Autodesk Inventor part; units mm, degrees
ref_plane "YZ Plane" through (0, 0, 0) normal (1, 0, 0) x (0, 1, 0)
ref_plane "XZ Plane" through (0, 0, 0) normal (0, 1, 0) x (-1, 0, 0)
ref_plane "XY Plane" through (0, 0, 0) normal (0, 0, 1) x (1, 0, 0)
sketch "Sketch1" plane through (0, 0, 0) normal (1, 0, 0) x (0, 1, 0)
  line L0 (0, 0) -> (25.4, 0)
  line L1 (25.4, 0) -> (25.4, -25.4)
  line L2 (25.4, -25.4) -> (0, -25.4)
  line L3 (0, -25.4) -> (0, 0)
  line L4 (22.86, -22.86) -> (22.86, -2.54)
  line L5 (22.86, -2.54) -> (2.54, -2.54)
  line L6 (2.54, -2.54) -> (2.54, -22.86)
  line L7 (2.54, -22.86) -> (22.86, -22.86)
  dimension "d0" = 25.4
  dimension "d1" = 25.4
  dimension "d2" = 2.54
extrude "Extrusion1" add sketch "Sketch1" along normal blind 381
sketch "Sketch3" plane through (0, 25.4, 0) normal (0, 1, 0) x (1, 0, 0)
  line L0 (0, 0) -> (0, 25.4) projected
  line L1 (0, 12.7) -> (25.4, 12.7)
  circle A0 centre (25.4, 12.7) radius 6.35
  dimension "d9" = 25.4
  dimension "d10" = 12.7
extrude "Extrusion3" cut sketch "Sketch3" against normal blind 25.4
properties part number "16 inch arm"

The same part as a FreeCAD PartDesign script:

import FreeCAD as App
import Part
import Sketcher
Q = App.Units.Quantity

doc = App.newDocument("Part")
body = doc.addObject("PartDesign::Body", "Body")

sketch1 = body.newObject("Sketcher::SketchObject", "Sketch")
sketch1.AttachmentSupport = (doc.getObject("YZ_Plane"), [""])
sketch1.MapMode = "FlatFace"
sketch1.addGeometry([
    Part.LineSegment(App.Vector(25, 0, 0), App.Vector(0, 0, 0)),
    Part.LineSegment(App.Vector(0, 0, 0), App.Vector(0, -25, 0)),
    Part.LineSegment(App.Vector(0, -25, 0), App.Vector(25, -25, 0)),
    Part.LineSegment(App.Vector(25, -25, 0), App.Vector(25, 0, 0)),
    Part.LineSegment(App.Vector(23, -3, 0), App.Vector(23, -23, 0)),
    Part.LineSegment(App.Vector(23, -23, 0), App.Vector(3, -23, 0)),
    Part.LineSegment(App.Vector(3, -23, 0), App.Vector(3, -3, 0)),
    Part.LineSegment(App.Vector(3, -3, 0), App.Vector(23, -3, 0)),
], False)
sketch1.addConstraint([
    Sketcher.Constraint("Coincident", 0, 2, 1, 1),
    Sketcher.Constraint("Coincident", 1, 2, 2, 1),
    Sketcher.Constraint("Coincident", 2, 2, 3, 1),
    Sketcher.Constraint("Coincident", 3, 2, 0, 1),
    Sketcher.Constraint("Coincident", 4, 2, 5, 1),
    Sketcher.Constraint("Coincident", 5, 2, 6, 1),
    Sketcher.Constraint("Coincident", 6, 2, 7, 1),
    Sketcher.Constraint("Coincident", 7, 2, 4, 1),
    Sketcher.Constraint("Horizontal", 0),
    Sketcher.Constraint("Vertical", 1),
    Sketcher.Constraint("Horizontal", 2),
    Sketcher.Constraint("Vertical", 3),
    Sketcher.Constraint("Vertical", 4),
    Sketcher.Constraint("Horizontal", 5),
    Sketcher.Constraint("Vertical", 6),
    Sketcher.Constraint("Horizontal", 7),
    Sketcher.Constraint("Coincident", 0, 2, -1, 1),
    Sketcher.Constraint("Equal", 2, 1),
    Sketcher.Constraint("Equal", 7, 4),
    Sketcher.Constraint("DistanceX", 0, 2, 0, 1, Q("1 in")),
    Sketcher.Constraint("DistanceX", -1, 1, 5, 2, Q("0.1 in")),
    Sketcher.Constraint("DistanceY", 6, 2, -1, 1, Q("0.1 in")),
    Sketcher.Constraint("DistanceX", 4, 2, 2, 2, Q("0.1 in")),
])
pad1 = body.newObject("PartDesign::Pad", "Pad")
pad1.Profile = sketch1
pad1.Length = Q("15 in")

sketch2 = body.newObject("Sketcher::SketchObject", "Sketch001")
sketch2.AttachmentSupport = (doc.getObject("XZ_Plane"), [""])
sketch2.MapMode = "FlatFace"
sketch2.AttachmentOffset = App.Placement(App.Vector(0, 0, -1 * 25.4), App.Rotation())
sketch2.addGeometry(Part.Circle(App.Vector(25, -13, 0), App.Vector(0, 0, 1), 6), False)
sketch2.addConstraint([
    Sketcher.Constraint("Diameter", 0, Q("0.5 in")),
    Sketcher.Constraint("DistanceX", -1, 1, 0, 3, Q("1 in")),
    Sketcher.Constraint("DistanceY", 0, 3, -1, 1, Q("0.5 in")),
])
pocket1 = body.newObject("PartDesign::Pocket", "Pocket")
pocket1.Profile = sketch2
pocket1.Length = Q("1 in")
pocket1.Reversed = True

doc.recompute()
